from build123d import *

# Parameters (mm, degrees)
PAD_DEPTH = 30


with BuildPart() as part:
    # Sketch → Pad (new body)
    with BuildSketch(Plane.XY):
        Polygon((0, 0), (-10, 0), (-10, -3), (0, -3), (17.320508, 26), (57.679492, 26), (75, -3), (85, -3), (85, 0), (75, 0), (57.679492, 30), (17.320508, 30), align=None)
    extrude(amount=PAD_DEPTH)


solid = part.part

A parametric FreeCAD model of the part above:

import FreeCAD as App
import Part
import Sketcher

V = App.Vector
Q = App.Units.Quantity

doc = App.newDocument("Part")
body = doc.addObject("PartDesign::Body", "Body")

sketch1 = body.newObject("Sketcher::SketchObject", "Sketch")
sketch1.AttachmentSupport = (doc.getObject("XY_Plane"), [""])
sketch1.MapMode = "FlatFace"
sketch1.addGeometry(Part.LineSegment(V(0, 0, 0), V(-10, 0, 0)), False)
sketch1.addGeometry(Part.LineSegment(V(-10, 0, 0), V(-10, -3, 0)), False)
sketch1.addGeometry(Part.LineSegment(V(-10, -3, 0), V(0, -3, 0)), False)
sketch1.addGeometry(Part.LineSegment(V(0, -3, 0), V(17.320508, 26, 0)), False)
sketch1.addGeometry(Part.LineSegment(V(17.320508, 26, 0), V(57.679492, 26, 0)), False)
sketch1.addGeometry(Part.LineSegment(V(57.679492, 26, 0), V(75, -3, 0)), False)
sketch1.addGeometry(Part.LineSegment(V(75, -3, 0), V(85, -3, 0)), False)
sketch1.addGeometry(Part.LineSegment(V(85, -3, 0), V(85, 0, 0)), False)
sketch1.addGeometry(Part.LineSegment(V(85, 0, 0), V(75, 0, 0)), False)
sketch1.addGeometry(Part.LineSegment(V(75, 0, 0), V(57.679492, 30, 0)), False)
sketch1.addGeometry(Part.LineSegment(V(57.679492, 30, 0), V(17.320508, 30, 0)), False)
sketch1.addGeometry(Part.LineSegment(V(17.320508, 30, 0), V(0, 0, 0)), False)
sketch1.addConstraint(Sketcher.Constraint("Coincident", 0, 2, 1, 1))
sketch1.addConstraint(Sketcher.Constraint("Coincident", 1, 2, 2, 1))
sketch1.addConstraint(Sketcher.Constraint("Coincident", 2, 2, 3, 1))
sketch1.addConstraint(Sketcher.Constraint("Coincident", 3, 2, 4, 1))
sketch1.addConstraint(Sketcher.Constraint("Coincident", 4, 2, 5, 1))
sketch1.addConstraint(Sketcher.Constraint("Coincident", 5, 2, 6, 1))
sketch1.addConstraint(Sketcher.Constraint("Coincident", 6, 2, 7, 1))
sketch1.addConstraint(Sketcher.Constraint("Coincident", 7, 2, 8, 1))
sketch1.addConstraint(Sketcher.Constraint("Coincident", 8, 2, 9, 1))
sketch1.addConstraint(Sketcher.Constraint("Coincident", 9, 2, 10, 1))
sketch1.addConstraint(Sketcher.Constraint("Coincident", 10, 2, 11, 1))
sketch1.addConstraint(Sketcher.Constraint("Coincident", 11, 2, 0, 1))
sketch1.addConstraint(Sketcher.Constraint("Horizontal", 0))
sketch1.addConstraint(Sketcher.Constraint("Vertical", 1))
sketch1.addConstraint(Sketcher.Constraint("Horizontal", 2))
sketch1.addConstraint(Sketcher.Constraint("Horizontal", 4))
sketch1.addConstraint(Sketcher.Constraint("Horizontal", 6))
sketch1.addConstraint(Sketcher.Constraint("Vertical", 7))
sketch1.addConstraint(Sketcher.Constraint("Horizontal", 8))
sketch1.addConstraint(Sketcher.Constraint("Horizontal", 10))
sketch1.addConstraint(Sketcher.Constraint("Coincident", 11, 2, -1, 1))
sketch1.addConstraint(Sketcher.Constraint("PointOnObject", 2, 2, -2))
sketch1.addConstraint(Sketcher.Constraint("PointOnObject", 7, 2, -1))
sketch1.addConstraint(Sketcher.Constraint("Horizontal", 2, 2, 5, 2))
sketch1.addConstraint(Sketcher.Constraint("Vertical", 5, 2, 8, 2))
sketch1.addConstraint(Sketcher.Constraint("Vertical", 4, 2, 9, 2))
sketch1.addConstraint(Sketcher.Constraint("Vertical", 3, 2, 10, 2))
sketch1.addConstraint(Sketcher.Constraint("Equal", 2, 6))
sketch1.addConstraint(Sketcher.Constraint("Equal", 3, 5))
sketch1.addConstraint(Sketcher.Constraint("DistanceX", 0, 2, 0, 1, 10.0))
sketch1.addConstraint(Sketcher.Constraint("DistanceY", 1, 2, 1, 1, 3.0))
sketch1.addConstraint(Sketcher.Constraint("Angle", 9, Q("120 deg")))
sketch1.addConstraint(Sketcher.Constraint("DistanceY", -1, 1, 3, 2, 26.0))
sketch1.addConstraint(Sketcher.Constraint("DistanceX", -1, 1, 5, 2, 75.0))
sketch1.addConstraint(Sketcher.Constraint("DistanceY", -1, 1, 9, 2, 30.0))
pad1 = body.newObject("PartDesign::Pad", "Pad")
pad1.Profile = sketch1
pad1.Length = 30

doc.recompute()
